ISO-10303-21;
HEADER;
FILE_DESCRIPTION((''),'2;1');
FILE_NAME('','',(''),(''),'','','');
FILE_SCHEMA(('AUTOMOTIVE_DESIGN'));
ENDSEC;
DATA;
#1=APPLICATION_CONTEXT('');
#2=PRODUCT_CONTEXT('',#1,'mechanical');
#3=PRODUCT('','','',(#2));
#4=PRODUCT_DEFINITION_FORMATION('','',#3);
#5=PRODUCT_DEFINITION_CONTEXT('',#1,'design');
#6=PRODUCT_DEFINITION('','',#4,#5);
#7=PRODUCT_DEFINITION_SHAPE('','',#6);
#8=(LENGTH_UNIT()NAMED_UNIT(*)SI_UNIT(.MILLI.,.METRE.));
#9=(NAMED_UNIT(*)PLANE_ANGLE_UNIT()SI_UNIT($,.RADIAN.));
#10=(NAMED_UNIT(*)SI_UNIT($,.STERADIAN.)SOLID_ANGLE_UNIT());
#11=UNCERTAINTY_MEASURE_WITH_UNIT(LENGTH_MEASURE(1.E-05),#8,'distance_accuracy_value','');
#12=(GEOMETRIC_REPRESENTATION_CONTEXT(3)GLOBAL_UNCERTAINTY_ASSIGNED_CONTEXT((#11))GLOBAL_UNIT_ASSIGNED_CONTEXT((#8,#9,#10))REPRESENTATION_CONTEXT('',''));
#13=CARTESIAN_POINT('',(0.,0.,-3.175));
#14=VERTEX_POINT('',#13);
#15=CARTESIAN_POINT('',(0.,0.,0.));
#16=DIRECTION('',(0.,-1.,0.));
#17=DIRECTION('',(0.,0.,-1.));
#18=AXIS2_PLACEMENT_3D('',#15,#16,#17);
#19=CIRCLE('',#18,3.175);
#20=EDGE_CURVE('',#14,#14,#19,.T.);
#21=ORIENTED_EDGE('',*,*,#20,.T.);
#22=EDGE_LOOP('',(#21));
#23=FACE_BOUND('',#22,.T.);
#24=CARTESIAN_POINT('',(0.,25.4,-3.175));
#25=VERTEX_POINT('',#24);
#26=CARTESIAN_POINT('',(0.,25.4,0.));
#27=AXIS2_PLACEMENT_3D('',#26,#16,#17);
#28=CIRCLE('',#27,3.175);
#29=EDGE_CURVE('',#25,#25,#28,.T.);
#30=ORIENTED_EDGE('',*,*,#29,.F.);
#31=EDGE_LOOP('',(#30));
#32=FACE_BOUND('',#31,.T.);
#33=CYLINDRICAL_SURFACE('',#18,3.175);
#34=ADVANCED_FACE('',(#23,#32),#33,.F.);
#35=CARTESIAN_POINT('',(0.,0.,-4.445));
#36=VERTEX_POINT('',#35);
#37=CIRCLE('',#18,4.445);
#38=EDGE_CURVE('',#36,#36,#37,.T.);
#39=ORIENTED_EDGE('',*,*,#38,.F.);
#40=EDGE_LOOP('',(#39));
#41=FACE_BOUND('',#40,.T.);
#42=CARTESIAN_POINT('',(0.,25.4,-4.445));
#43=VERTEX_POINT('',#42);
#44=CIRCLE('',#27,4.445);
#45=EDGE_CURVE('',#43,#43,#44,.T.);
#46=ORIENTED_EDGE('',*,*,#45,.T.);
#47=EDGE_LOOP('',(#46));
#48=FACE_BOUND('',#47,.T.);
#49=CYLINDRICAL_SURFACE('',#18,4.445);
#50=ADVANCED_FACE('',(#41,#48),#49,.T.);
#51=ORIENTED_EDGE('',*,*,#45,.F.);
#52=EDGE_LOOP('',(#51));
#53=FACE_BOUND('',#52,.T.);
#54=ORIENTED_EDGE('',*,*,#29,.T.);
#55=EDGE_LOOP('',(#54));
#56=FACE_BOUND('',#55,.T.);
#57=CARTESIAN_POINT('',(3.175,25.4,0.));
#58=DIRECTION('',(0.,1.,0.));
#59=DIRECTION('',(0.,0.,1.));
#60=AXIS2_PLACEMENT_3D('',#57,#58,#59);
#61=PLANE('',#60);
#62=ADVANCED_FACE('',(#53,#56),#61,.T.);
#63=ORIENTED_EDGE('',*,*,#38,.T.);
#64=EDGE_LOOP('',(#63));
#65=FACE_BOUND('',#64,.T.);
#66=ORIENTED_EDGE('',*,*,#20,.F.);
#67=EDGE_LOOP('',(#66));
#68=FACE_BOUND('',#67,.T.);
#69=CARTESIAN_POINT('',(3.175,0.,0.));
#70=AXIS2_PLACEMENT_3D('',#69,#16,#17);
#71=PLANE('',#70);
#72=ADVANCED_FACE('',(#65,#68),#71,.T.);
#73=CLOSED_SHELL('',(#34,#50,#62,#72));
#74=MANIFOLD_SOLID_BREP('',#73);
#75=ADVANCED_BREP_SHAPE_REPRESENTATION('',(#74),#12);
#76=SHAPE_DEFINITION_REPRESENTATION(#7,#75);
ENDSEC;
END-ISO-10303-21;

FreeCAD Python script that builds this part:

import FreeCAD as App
import Part
import Sketcher

V = App.Vector
Q = App.Units.Quantity


def add_polygon(sketch, points):
    """Adds a closed chain of lines whose ends are joined by coincident constraints."""
    first, n = sketch.GeometryCount, len(points)
    for a, b in zip(points, points[1:] + points[:1]):
        sketch.addGeometry(Part.LineSegment(App.Vector(*a, 0), App.Vector(*b, 0)), False)
    for i in range(n):
        sketch.addConstraint(Sketcher.Constraint("Coincident", first + i, 2, first + (i + 1) % n, 1))

doc = App.newDocument("Part")
body = doc.addObject("PartDesign::Body", "Body")

sketch1 = body.newObject("Sketcher::SketchObject", "Sketch")
sketch1.AttachmentSupport = (doc.getObject("XY_Plane"), [""])
sketch1.MapMode = "FlatFace"
add_polygon(sketch1, [(3.2, 25.4), (3.2, 0), (4.4, 0), (4.4, 25.4)])
sketch1.addConstraint(Sketcher.Constraint("Vertical", 0))
sketch1.addConstraint(Sketcher.Constraint("Horizontal", 1))
sketch1.addConstraint(Sketcher.Constraint("Vertical", 2))
sketch1.addConstraint(Sketcher.Constraint("Horizontal", 3))
sketch1.addConstraint(Sketcher.Constraint("PointOnObject", 0, 2, -1))
sketch1.addConstraint(Sketcher.Constraint("DistanceY", 0, 2, 0, 1, Q("1 in")))
sketch1.addConstraint(Sketcher.Constraint("DistanceX", 1, 1, 1, 2, Q("0.05 in")))
sketch1.addConstraint(Sketcher.Constraint("DistanceX", -1, 1, 0, 2, Q("0.125 in")))
revolution = body.newObject("PartDesign::Revolution", "Revolution")
revolution.Profile = sketch1
revolution.ReferenceAxis = (sketch1, ["V_Axis"])
revolution.Angle = 360

doc.recompute()
